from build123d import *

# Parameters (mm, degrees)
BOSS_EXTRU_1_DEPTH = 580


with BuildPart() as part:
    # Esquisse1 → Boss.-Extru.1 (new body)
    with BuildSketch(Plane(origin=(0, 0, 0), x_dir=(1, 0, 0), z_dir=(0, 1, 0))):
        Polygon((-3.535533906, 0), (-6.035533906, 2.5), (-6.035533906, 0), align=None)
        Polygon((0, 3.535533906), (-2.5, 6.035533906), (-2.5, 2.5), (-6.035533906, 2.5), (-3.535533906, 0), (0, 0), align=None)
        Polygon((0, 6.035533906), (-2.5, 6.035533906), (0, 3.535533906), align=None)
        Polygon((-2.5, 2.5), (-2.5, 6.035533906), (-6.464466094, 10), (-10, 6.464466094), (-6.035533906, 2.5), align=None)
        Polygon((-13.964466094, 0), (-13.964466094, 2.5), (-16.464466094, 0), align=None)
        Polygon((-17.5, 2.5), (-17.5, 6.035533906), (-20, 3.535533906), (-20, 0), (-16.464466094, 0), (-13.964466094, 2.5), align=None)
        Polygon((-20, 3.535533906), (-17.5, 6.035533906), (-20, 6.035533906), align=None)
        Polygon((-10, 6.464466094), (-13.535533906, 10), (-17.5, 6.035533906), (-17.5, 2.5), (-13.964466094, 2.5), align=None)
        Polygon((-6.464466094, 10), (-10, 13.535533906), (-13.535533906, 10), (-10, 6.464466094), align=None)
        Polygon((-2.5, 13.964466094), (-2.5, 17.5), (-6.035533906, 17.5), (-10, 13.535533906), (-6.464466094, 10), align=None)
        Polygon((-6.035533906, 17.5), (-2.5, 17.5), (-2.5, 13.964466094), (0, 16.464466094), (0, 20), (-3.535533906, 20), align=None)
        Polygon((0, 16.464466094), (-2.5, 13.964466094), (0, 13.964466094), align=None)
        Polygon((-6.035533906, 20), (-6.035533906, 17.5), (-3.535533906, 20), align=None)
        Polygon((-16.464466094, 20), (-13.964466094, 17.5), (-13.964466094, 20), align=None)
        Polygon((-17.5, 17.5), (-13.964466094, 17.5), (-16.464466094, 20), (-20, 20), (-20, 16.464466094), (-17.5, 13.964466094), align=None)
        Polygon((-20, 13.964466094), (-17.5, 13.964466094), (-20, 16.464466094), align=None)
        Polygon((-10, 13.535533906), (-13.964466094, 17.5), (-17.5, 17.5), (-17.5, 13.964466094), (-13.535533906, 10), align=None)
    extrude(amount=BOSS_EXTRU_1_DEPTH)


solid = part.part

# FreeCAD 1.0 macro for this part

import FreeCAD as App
import Part
import Sketcher

doc = App.newDocument("Part")
params = doc.addObject("Spreadsheet::Sheet", "Params")
for row, (alias, value) in enumerate([
    ("sketch1_width", "2.5 mm"),
    ("pad1_length", "580 mm"),
], start=1):
    params.set(f"A{row}", alias)
    params.set(f"B{row}", "=" + value)
    params.setAlias(f"B{row}", alias)

body = doc.addObject("PartDesign::Body", "Body")

# Sketch on XZ plane
sketch1 = body.newObject("Sketcher::SketchObject", "Sketch")
sketch1.AttachmentSupport = (doc.getObject("XZ_Plane"), [""])
sketch1.MapMode = "FlatFace"
sketch1.addGeometry(Part.LineSegment(App.Vector(-6, -2.5, 0), App.Vector(-6, 0, 0)), False)
sketch1.addGeometry(Part.LineSegment(App.Vector(-6, 0, 0), App.Vector(0, 0, 0)), False)
sketch1.addGeometry(Part.LineSegment(App.Vector(0, 0, 0), App.Vector(0, -6, 0)), False)
sketch1.addGeometry(Part.LineSegment(App.Vector(0, -6, 0), App.Vector(-2.5, -6, 0)), False)
sketch1.addGeometry(Part.LineSegment(App.Vector(-2.5, -6, 0), App.Vector(-6.5, -10, 0)), False)
sketch1.addGeometry(Part.LineSegment(App.Vector(-6.5, -10, 0), App.Vector(-2.5, -14, 0)), False)
sketch1.addGeometry(Part.LineSegment(App.Vector(-2.5, -14, 0), App.Vector(0, -14, 0)), False)
sketch1.addGeometry(Part.LineSegment(App.Vector(0, -14, 0), App.Vector(0, -20, 0)), False)
sketch1.addGeometry(Part.LineSegment(App.Vector(0, -20, 0), App.Vector(-6, -20, 0)), False)
sketch1.addGeometry(Part.LineSegment(App.Vector(-6, -20, 0), App.Vector(-6, -17.5, 0)), False)
sketch1.addGeometry(Part.LineSegment(App.Vector(-6, -17.5, 0), App.Vector(-10, -13.5, 0)), False)
sketch1.addGeometry(Part.LineSegment(App.Vector(-10, -13.5, 0), App.Vector(-14, -17.5, 0)), False)
sketch1.addGeometry(Part.LineSegment(App.Vector(-14, -17.5, 0), App.Vector(-14, -20, 0)), False)
sketch1.addGeometry(Part.LineSegment(App.Vector(-14, -20, 0), App.Vector(-20, -20, 0)), False)
sketch1.addGeometry(Part.LineSegment(App.Vector(-20, -20, 0), App.Vector(-20, -14, 0)), False)
sketch1.addGeometry(Part.LineSegment(App.Vector(-20, -14, 0), App.Vector(-17.5, -14, 0)), False)
sketch1.addGeometry(Part.LineSegment(App.Vector(-17.5, -14, 0), App.Vector(-13.5, -10, 0)), False)
sketch1.addGeometry(Part.LineSegment(App.Vector(-13.5, -10, 0), App.Vector(-17.5, -6, 0)), False)
sketch1.addGeometry(Part.LineSegment(App.Vector(-17.5, -6, 0), App.Vector(-20, -6, 0)), False)
sketch1.addGeometry(Part.LineSegment(App.Vector(-20, -6, 0), App.Vector(-20, 0, 0)), False)
sketch1.addGeometry(Part.LineSegment(App.Vector(-20, 0, 0), App.Vector(-14, 0, 0)), False)
sketch1.addGeometry(Part.LineSegment(App.Vector(-14, 0, 0), App.Vector(-14, -2.5, 0)), False)
sketch1.addGeometry(Part.LineSegment(App.Vector(-14, -2.5, 0), App.Vector(-10, -6.5, 0)), False)
sketch1.addGeometry(Part.LineSegment(App.Vector(-10, -6.5, 0), App.Vector(-6, -2.5, 0)), False)
sketch1.addConstraint(Sketcher.Constraint("Coincident", 0, 2, 1, 1))
sketch1.addConstraint(Sketcher.Constraint("Coincident", 1, 2, 2, 1))
sketch1.addConstraint(Sketcher.Constraint("Coincident", 2, 2, 3, 1))
sketch1.addConstraint(Sketcher.Constraint("Coincident", 3, 2, 4, 1))
sketch1.addConstraint(Sketcher.Constraint("Coincident", 4, 2, 5, 1))
sketch1.addConstraint(Sketcher.Constraint("Coincident", 5, 2, 6, 1))
sketch1.addConstraint(Sketcher.Constraint("Coincident", 6, 2, 7, 1))
sketch1.addConstraint(Sketcher.Constraint("Coincident", 7, 2, 8, 1))
sketch1.addConstraint(Sketcher.Constraint("Coincident", 8, 2, 9, 1))
sketch1.addConstraint(Sketcher.Constraint("Coincident", 9, 2, 10, 1))
sketch1.addConstraint(Sketcher.Constraint("Coincident", 10, 2, 11, 1))
sketch1.addConstraint(Sketcher.Constraint("Coincident", 11, 2, 12, 1))
sketch1.addConstraint(Sketcher.Constraint("Coincident", 12, 2, 13, 1))
sketch1.addConstraint(Sketcher.Constraint("Coincident", 13, 2, 14, 1))
sketch1.addConstraint(Sketcher.Constraint("Coincident", 14, 2, 15, 1))
sketch1.addConstraint(Sketcher.Constraint("Coincident", 15, 2, 16, 1))
sketch1.addConstraint(Sketcher.Constraint("Coincident", 16, 2, 17, 1))
sketch1.addConstraint(Sketcher.Constraint("Coincident", 17, 2, 18, 1))
sketch1.addConstraint(Sketcher.Constraint("Coincident", 18, 2, 19, 1))
sketch1.addConstraint(Sketcher.Constraint("Coincident", 19, 2, 20, 1))
sketch1.addConstraint(Sketcher.Constraint("Coincident", 20, 2, 21, 1))
sketch1.addConstraint(Sketcher.Constraint("Coincident", 21, 2, 22, 1))
sketch1.addConstraint(Sketcher.Constraint("Coincident", 22, 2, 23, 1))
sketch1.addConstraint(Sketcher.Constraint("Coincident", 23, 2, 0, 1))
sketch1.addConstraint(Sketcher.Constraint("Vertical", 0))
sketch1.addConstraint(Sketcher.Constraint("Horizontal", 1))
sketch1.addConstraint(Sketcher.Constraint("Vertical", 2))
sketch1.addConstraint(Sketcher.Constraint("Horizontal", 3))
sketch1.addConstraint(Sketcher.Constraint("Horizontal", 6))
sketch1.addConstraint(Sketcher.Constraint("Vertical", 7))
sketch1.addConstraint(Sketcher.Constraint("Horizontal", 8))
sketch1.addConstraint(Sketcher.Constraint("Vertical", 9))
sketch1.addConstraint(Sketcher.Constraint("Vertical", 12))
sketch1.addConstraint(Sketcher.Constraint("Horizontal", 13))
sketch1.addConstraint(Sketcher.Constraint("Vertical", 14))
sketch1.addConstraint(Sketcher.Constraint("Horizontal", 15))
sketch1.addConstraint(Sketcher.Constraint("Horizontal", 18))
sketch1.addConstraint(Sketcher.Constraint("Vertical", 19))
sketch1.addConstraint(Sketcher.Constraint("Horizontal", 20))
sketch1.addConstraint(Sketcher.Constraint("Vertical", 21))
sketch1.addConstraint(Sketcher.Constraint("Coincident", 1, 2, -1, 1))
sketch1.addConstraint(Sketcher.Constraint("PointOnObject", 6, 2, -2))
sketch1.addConstraint(Sketcher.Constraint("PointOnObject", 19, 2, -1))
sketch1.addConstraint(Sketcher.Constraint("Perpendicular", 4, 5))
sketch1.addConstraint(Sketcher.Constraint("Parallel", 5, 10))
sketch1.addConstraint(Sketcher.Constraint("Perpendicular", 10, 11))
sketch1.addConstraint(Sketcher.Constraint("Parallel", 11, 16))
sketch1.addConstraint(Sketcher.Constraint("Perpendicular", 16, 17))
sketch1.addConstraint(Sketcher.Constraint("Parallel", 17, 22))
sketch1.addConstraint(Sketcher.Constraint("Perpendicular", 22, 23))
sketch1.addConstraint(Sketcher.Constraint("Horizontal", 9, 2, 11, 2))
sketch1.addConstraint(Sketcher.Constraint("Horizontal", 8, 2, 12, 2))
sketch1.addConstraint(Sketcher.Constraint("Horizontal", 6, 2, 14, 2))
sketch1.addConstraint(Sketcher.Constraint("Horizontal", 4, 2, 16, 2))
sketch1.addConstraint(Sketcher.Constraint("Horizontal", 3, 2, 17, 2))
sketch1.addConstraint(Sketcher.Constraint("Horizontal", 21, 2, 23, 2))
sketch1.addConstraint(Sketcher.Constraint("Vertical", 3, 2, 5, 2))
sketch1.addConstraint(Sketcher.Constraint("Vertical", 0, 2, 8, 2))
sketch1.addConstraint(Sketcher.Constraint("Vertical", 15, 2, 17, 2))
sketch1.addConstraint(Sketcher.Constraint("Vertical", 14, 2, 18, 2))
sketch1.addConstraint(Sketcher.Constraint("Vertical", 12, 2, 20, 2))
sketch1.addConstraint(Sketcher.Constraint("Equal", 8, 13))
sketch1.addConstraint(Sketcher.Constraint("Equal", 6, 15))
sketch1.addConstraint(Sketcher.Constraint("Equal", 18, 0))
sketch1.addConstraint(Sketcher.Constraint("Equal", 20, 2))
sketch1.addConstraint(Sketcher.Constraint("Equal", 2, 7))
sketch1.addConstraint(Sketcher.Constraint("Equal", 0, 9))
sketch1.addConstraint(Sketcher.Constraint("Equal", 5, 10))
sketch1.addConstraint(Sketcher.Constraint("DistanceX", 3, 2, 3, 1, 2.5))
sketch1.addConstraint(Sketcher.Constraint("DistanceY", 4, 2, -1, 1, 10.0))
sketch1.addConstraint(Sketcher.Constraint("Distance", 4, 5.606602))
sketch1.setExpression("Constraints[68]", "Params.sketch1_width")
pad1 = body.newObject("PartDesign::Pad", "Pad")
pad1.Profile = sketch1
pad1.setExpression("Length", "Params.pad1_length")
pad1.Reversed = True

doc.recompute()
